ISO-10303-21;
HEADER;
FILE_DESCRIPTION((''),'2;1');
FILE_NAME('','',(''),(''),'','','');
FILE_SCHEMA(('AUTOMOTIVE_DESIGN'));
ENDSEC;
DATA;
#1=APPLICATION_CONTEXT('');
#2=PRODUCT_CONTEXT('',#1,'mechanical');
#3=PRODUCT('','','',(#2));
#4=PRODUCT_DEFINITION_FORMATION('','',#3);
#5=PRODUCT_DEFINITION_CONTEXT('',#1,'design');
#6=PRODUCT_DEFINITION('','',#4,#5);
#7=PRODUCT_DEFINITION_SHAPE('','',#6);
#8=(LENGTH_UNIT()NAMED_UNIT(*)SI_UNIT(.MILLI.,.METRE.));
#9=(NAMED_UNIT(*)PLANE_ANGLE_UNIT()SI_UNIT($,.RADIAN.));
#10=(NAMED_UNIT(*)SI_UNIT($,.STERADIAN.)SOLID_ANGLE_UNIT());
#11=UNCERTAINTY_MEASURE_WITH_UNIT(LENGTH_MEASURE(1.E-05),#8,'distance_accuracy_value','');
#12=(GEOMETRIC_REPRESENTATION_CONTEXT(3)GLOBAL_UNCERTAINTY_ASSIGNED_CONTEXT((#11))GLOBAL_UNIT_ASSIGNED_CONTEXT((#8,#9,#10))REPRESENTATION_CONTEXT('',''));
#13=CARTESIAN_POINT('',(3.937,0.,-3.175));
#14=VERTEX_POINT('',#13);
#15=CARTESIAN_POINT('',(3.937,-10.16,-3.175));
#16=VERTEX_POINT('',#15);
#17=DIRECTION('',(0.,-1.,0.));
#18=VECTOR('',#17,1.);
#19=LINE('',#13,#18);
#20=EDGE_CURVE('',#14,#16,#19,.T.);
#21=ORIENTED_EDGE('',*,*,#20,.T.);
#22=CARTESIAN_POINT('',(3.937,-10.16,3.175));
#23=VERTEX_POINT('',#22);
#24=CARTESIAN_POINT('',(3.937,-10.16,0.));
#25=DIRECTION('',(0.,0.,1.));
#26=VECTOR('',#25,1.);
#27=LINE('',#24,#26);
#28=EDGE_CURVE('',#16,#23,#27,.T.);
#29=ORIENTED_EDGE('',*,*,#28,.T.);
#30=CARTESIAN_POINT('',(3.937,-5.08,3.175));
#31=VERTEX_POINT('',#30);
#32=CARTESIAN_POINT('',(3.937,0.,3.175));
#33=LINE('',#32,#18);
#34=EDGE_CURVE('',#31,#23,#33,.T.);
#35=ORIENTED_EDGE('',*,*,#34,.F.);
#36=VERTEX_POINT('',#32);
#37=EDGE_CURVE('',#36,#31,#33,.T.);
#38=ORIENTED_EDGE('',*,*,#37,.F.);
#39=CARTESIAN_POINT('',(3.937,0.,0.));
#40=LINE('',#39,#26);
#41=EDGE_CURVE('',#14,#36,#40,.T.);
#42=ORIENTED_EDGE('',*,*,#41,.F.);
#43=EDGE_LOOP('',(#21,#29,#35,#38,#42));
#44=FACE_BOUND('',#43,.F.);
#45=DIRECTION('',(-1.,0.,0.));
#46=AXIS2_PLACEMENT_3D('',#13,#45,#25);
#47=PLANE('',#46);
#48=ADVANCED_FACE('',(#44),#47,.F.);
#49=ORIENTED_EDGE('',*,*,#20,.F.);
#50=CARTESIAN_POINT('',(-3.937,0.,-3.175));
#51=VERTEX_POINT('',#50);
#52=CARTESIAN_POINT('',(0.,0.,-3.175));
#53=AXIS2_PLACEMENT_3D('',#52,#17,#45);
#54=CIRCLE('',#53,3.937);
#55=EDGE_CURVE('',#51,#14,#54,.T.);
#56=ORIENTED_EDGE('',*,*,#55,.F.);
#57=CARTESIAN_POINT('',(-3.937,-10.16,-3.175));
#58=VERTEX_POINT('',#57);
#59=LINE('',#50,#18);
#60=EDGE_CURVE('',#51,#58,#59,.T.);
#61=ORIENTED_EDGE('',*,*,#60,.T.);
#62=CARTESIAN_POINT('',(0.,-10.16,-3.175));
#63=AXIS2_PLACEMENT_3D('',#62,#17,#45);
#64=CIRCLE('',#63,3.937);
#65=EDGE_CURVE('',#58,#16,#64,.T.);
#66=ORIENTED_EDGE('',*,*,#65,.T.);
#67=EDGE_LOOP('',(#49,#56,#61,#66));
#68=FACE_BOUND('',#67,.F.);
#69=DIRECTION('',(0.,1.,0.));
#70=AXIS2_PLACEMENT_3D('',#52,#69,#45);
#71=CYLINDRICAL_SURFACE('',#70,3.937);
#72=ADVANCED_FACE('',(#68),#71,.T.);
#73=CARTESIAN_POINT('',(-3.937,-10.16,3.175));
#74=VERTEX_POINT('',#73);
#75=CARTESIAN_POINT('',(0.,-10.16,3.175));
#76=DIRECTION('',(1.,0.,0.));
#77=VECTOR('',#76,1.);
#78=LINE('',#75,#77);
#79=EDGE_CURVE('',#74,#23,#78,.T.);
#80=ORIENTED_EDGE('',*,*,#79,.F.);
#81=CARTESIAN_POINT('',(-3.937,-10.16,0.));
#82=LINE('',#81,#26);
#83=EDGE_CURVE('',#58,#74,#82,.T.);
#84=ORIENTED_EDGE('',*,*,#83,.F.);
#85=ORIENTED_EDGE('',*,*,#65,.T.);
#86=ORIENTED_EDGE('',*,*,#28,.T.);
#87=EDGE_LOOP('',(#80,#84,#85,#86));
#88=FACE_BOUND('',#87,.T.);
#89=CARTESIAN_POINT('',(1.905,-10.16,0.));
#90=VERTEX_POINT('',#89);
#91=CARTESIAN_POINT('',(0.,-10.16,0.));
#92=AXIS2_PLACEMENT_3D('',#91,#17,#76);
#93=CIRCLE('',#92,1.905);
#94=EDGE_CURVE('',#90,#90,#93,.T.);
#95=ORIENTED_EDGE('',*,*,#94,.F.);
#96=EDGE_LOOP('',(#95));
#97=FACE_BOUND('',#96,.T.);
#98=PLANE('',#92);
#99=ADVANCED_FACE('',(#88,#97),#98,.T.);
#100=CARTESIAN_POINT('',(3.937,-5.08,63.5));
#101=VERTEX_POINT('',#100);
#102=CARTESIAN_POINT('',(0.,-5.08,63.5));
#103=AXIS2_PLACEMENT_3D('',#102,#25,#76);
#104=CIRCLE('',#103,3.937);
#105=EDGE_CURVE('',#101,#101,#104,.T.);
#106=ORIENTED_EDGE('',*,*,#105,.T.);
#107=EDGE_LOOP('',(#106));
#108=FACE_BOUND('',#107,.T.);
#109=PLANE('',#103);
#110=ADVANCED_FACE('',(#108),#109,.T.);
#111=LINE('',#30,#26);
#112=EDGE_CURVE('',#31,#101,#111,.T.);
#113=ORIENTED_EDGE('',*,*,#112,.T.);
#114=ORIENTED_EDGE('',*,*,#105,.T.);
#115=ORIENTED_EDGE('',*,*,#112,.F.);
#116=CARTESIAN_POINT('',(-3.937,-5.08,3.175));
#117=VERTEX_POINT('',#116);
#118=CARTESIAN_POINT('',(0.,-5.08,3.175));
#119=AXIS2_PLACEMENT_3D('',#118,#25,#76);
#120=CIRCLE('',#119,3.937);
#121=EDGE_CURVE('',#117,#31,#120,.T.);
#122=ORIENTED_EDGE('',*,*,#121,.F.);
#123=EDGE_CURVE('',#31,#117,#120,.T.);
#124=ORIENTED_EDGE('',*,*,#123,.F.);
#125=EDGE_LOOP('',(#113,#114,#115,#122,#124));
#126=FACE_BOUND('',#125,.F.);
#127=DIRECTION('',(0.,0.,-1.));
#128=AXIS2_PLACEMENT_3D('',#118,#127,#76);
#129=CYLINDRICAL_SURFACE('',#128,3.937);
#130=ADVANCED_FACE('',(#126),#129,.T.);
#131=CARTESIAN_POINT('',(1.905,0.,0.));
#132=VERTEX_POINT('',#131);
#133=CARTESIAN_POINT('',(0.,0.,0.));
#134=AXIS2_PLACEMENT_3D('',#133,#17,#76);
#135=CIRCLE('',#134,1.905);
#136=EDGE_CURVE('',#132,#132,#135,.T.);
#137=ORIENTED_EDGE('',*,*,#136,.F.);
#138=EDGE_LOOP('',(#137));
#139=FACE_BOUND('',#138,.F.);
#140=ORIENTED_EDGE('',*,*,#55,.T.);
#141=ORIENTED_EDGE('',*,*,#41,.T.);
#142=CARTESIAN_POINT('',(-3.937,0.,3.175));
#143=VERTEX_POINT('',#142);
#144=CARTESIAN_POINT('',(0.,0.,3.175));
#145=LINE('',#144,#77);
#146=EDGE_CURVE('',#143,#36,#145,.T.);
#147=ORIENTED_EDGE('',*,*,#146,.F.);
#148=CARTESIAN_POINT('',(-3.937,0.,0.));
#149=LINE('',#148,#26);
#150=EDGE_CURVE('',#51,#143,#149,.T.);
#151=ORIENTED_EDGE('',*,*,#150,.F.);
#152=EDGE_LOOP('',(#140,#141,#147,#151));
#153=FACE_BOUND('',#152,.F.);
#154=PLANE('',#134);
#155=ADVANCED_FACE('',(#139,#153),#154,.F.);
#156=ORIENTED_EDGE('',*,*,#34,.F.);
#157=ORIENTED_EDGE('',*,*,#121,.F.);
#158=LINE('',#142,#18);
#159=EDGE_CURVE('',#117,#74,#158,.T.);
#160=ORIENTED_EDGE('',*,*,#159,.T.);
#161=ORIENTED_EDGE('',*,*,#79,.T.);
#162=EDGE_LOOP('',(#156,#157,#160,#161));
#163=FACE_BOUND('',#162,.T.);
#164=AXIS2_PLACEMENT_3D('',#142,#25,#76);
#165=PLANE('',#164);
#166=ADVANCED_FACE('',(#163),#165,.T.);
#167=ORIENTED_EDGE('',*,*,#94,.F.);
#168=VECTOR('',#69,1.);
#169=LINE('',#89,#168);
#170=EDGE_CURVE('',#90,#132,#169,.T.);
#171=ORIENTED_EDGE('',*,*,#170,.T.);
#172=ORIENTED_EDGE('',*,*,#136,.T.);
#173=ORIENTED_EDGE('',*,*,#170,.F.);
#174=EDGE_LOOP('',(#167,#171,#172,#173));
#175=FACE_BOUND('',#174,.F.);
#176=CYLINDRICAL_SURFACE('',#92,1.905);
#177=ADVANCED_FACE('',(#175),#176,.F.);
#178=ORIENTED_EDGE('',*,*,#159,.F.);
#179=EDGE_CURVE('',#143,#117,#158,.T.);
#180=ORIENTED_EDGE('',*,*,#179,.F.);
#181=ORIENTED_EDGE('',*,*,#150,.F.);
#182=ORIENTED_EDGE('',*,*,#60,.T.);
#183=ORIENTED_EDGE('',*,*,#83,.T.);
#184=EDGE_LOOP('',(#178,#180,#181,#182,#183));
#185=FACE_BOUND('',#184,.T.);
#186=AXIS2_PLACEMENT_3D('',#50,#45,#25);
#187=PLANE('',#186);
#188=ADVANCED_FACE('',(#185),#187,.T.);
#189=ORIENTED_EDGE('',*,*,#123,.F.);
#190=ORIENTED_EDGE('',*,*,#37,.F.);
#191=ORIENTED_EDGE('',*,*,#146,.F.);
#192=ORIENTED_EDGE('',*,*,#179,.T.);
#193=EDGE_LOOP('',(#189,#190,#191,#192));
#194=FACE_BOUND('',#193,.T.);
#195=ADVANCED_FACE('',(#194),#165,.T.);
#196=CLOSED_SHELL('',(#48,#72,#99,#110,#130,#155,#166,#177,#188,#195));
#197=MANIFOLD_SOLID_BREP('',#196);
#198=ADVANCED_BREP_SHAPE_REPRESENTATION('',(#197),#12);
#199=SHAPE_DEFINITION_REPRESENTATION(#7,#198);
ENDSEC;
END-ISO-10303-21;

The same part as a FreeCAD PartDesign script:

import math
import FreeCAD as App
import Part
import Sketcher
from FreeCAD import Vector
Q = App.Units.Quantity

doc = App.newDocument("Part")
body = doc.addObject("PartDesign::Body", "Body")

# Sketch on XZ plane
sketch1 = body.newObject("Sketcher::SketchObject", "Sketch")
sketch1.AttachmentSupport = (doc.getObject("XZ_Plane"), [""])
sketch1.MapMode = "FlatFace"
sketch1.addGeometry([
    Part.LineSegment(Vector(-3.9, 3.2, 0), Vector(-3.9, -3.2, 0)),
    Part.ArcOfCircle(Part.Circle(Vector(0, -3.2, 0), Vector(0, 0, 1), 3.9), math.radians(180), math.radians(360)),
    Part.LineSegment(Vector(3.9, -3.2, 0), Vector(3.9, 3.2, 0)),
    Part.LineSegment(Vector(3.9, 3.2, 0), Vector(-3.9, 3.2, 0)),
], False)
sketch1.addConstraint([
    Sketcher.Constraint("Tangent", 0, 2, 1, 1),
    Sketcher.Constraint("Tangent", 1, 2, 2, 1),
    Sketcher.Constraint("Coincident", 2, 2, 3, 1),
    Sketcher.Constraint("Coincident", 3, 2, 0, 1),
    Sketcher.Constraint("Vertical", 0),
    Sketcher.Constraint("Vertical", 2),
    Sketcher.Constraint("Horizontal", 3),
    Sketcher.Constraint("Symmetric", 0, 2, 2, 2, -1, 1),
    Sketcher.Constraint("Radius", 1, Q("0.155 in")),
    Sketcher.Constraint("DistanceY", 0, 2, 0, 1, Q("0.25 in")),
])
pad1 = body.newObject("PartDesign::Pad", "Pad")
pad1.Profile = sketch1
pad1.Length = Q("0.4 in")

# Sketch on XZ plane
sketch2 = body.newObject("Sketcher::SketchObject", "Sketch001")
sketch2.AttachmentSupport = (doc.getObject("XZ_Plane"), [""])
sketch2.MapMode = "FlatFace"
sketch2.AttachmentOffset = App.Placement(Vector(0, 0, 0.4 * 25.4), App.Rotation())
sketch2.addGeometry(Part.Circle(Vector(0, 0, 0), Vector(0, 0, 1), 1.9), False)
sketch2.addConstraint([
    Sketcher.Constraint("Coincident", 0, 3, -1, 1),
    Sketcher.Constraint("Diameter", 0, Q("0.15 in")),
])
pocket1 = body.newObject("PartDesign::Pocket", "Pocket")
pocket1.Profile = sketch2
pocket1.Type = "ThroughAll"

# Sketch on XY plane
sketch3 = body.newObject("Sketcher::SketchObject", "Sketch002")
sketch3.AttachmentSupport = (doc.getObject("XY_Plane"), [""])
sketch3.MapMode = "FlatFace"
sketch3.AttachmentOffset = App.Placement(Vector(0, 0, 0.125 * 25.4), App.Rotation())
sketch3.addGeometry(Part.Circle(Vector(0, -5.1, 0), Vector(0, 0, 1), 3.9), False)
sketch3.addConstraint([
    Sketcher.Constraint("PointOnObject", 0, 3, -2),
    Sketcher.Constraint("Diameter", 0, Q("0.31 in")),
    Sketcher.Constraint("DistanceY", 0, 3, -1, 1, Q("0.2 in")),
])
pad2 = body.newObject("PartDesign::Pad", "Pad001")
pad2.Profile = sketch3
pad2.Length = Q("2.375 in")

doc.recompute()
